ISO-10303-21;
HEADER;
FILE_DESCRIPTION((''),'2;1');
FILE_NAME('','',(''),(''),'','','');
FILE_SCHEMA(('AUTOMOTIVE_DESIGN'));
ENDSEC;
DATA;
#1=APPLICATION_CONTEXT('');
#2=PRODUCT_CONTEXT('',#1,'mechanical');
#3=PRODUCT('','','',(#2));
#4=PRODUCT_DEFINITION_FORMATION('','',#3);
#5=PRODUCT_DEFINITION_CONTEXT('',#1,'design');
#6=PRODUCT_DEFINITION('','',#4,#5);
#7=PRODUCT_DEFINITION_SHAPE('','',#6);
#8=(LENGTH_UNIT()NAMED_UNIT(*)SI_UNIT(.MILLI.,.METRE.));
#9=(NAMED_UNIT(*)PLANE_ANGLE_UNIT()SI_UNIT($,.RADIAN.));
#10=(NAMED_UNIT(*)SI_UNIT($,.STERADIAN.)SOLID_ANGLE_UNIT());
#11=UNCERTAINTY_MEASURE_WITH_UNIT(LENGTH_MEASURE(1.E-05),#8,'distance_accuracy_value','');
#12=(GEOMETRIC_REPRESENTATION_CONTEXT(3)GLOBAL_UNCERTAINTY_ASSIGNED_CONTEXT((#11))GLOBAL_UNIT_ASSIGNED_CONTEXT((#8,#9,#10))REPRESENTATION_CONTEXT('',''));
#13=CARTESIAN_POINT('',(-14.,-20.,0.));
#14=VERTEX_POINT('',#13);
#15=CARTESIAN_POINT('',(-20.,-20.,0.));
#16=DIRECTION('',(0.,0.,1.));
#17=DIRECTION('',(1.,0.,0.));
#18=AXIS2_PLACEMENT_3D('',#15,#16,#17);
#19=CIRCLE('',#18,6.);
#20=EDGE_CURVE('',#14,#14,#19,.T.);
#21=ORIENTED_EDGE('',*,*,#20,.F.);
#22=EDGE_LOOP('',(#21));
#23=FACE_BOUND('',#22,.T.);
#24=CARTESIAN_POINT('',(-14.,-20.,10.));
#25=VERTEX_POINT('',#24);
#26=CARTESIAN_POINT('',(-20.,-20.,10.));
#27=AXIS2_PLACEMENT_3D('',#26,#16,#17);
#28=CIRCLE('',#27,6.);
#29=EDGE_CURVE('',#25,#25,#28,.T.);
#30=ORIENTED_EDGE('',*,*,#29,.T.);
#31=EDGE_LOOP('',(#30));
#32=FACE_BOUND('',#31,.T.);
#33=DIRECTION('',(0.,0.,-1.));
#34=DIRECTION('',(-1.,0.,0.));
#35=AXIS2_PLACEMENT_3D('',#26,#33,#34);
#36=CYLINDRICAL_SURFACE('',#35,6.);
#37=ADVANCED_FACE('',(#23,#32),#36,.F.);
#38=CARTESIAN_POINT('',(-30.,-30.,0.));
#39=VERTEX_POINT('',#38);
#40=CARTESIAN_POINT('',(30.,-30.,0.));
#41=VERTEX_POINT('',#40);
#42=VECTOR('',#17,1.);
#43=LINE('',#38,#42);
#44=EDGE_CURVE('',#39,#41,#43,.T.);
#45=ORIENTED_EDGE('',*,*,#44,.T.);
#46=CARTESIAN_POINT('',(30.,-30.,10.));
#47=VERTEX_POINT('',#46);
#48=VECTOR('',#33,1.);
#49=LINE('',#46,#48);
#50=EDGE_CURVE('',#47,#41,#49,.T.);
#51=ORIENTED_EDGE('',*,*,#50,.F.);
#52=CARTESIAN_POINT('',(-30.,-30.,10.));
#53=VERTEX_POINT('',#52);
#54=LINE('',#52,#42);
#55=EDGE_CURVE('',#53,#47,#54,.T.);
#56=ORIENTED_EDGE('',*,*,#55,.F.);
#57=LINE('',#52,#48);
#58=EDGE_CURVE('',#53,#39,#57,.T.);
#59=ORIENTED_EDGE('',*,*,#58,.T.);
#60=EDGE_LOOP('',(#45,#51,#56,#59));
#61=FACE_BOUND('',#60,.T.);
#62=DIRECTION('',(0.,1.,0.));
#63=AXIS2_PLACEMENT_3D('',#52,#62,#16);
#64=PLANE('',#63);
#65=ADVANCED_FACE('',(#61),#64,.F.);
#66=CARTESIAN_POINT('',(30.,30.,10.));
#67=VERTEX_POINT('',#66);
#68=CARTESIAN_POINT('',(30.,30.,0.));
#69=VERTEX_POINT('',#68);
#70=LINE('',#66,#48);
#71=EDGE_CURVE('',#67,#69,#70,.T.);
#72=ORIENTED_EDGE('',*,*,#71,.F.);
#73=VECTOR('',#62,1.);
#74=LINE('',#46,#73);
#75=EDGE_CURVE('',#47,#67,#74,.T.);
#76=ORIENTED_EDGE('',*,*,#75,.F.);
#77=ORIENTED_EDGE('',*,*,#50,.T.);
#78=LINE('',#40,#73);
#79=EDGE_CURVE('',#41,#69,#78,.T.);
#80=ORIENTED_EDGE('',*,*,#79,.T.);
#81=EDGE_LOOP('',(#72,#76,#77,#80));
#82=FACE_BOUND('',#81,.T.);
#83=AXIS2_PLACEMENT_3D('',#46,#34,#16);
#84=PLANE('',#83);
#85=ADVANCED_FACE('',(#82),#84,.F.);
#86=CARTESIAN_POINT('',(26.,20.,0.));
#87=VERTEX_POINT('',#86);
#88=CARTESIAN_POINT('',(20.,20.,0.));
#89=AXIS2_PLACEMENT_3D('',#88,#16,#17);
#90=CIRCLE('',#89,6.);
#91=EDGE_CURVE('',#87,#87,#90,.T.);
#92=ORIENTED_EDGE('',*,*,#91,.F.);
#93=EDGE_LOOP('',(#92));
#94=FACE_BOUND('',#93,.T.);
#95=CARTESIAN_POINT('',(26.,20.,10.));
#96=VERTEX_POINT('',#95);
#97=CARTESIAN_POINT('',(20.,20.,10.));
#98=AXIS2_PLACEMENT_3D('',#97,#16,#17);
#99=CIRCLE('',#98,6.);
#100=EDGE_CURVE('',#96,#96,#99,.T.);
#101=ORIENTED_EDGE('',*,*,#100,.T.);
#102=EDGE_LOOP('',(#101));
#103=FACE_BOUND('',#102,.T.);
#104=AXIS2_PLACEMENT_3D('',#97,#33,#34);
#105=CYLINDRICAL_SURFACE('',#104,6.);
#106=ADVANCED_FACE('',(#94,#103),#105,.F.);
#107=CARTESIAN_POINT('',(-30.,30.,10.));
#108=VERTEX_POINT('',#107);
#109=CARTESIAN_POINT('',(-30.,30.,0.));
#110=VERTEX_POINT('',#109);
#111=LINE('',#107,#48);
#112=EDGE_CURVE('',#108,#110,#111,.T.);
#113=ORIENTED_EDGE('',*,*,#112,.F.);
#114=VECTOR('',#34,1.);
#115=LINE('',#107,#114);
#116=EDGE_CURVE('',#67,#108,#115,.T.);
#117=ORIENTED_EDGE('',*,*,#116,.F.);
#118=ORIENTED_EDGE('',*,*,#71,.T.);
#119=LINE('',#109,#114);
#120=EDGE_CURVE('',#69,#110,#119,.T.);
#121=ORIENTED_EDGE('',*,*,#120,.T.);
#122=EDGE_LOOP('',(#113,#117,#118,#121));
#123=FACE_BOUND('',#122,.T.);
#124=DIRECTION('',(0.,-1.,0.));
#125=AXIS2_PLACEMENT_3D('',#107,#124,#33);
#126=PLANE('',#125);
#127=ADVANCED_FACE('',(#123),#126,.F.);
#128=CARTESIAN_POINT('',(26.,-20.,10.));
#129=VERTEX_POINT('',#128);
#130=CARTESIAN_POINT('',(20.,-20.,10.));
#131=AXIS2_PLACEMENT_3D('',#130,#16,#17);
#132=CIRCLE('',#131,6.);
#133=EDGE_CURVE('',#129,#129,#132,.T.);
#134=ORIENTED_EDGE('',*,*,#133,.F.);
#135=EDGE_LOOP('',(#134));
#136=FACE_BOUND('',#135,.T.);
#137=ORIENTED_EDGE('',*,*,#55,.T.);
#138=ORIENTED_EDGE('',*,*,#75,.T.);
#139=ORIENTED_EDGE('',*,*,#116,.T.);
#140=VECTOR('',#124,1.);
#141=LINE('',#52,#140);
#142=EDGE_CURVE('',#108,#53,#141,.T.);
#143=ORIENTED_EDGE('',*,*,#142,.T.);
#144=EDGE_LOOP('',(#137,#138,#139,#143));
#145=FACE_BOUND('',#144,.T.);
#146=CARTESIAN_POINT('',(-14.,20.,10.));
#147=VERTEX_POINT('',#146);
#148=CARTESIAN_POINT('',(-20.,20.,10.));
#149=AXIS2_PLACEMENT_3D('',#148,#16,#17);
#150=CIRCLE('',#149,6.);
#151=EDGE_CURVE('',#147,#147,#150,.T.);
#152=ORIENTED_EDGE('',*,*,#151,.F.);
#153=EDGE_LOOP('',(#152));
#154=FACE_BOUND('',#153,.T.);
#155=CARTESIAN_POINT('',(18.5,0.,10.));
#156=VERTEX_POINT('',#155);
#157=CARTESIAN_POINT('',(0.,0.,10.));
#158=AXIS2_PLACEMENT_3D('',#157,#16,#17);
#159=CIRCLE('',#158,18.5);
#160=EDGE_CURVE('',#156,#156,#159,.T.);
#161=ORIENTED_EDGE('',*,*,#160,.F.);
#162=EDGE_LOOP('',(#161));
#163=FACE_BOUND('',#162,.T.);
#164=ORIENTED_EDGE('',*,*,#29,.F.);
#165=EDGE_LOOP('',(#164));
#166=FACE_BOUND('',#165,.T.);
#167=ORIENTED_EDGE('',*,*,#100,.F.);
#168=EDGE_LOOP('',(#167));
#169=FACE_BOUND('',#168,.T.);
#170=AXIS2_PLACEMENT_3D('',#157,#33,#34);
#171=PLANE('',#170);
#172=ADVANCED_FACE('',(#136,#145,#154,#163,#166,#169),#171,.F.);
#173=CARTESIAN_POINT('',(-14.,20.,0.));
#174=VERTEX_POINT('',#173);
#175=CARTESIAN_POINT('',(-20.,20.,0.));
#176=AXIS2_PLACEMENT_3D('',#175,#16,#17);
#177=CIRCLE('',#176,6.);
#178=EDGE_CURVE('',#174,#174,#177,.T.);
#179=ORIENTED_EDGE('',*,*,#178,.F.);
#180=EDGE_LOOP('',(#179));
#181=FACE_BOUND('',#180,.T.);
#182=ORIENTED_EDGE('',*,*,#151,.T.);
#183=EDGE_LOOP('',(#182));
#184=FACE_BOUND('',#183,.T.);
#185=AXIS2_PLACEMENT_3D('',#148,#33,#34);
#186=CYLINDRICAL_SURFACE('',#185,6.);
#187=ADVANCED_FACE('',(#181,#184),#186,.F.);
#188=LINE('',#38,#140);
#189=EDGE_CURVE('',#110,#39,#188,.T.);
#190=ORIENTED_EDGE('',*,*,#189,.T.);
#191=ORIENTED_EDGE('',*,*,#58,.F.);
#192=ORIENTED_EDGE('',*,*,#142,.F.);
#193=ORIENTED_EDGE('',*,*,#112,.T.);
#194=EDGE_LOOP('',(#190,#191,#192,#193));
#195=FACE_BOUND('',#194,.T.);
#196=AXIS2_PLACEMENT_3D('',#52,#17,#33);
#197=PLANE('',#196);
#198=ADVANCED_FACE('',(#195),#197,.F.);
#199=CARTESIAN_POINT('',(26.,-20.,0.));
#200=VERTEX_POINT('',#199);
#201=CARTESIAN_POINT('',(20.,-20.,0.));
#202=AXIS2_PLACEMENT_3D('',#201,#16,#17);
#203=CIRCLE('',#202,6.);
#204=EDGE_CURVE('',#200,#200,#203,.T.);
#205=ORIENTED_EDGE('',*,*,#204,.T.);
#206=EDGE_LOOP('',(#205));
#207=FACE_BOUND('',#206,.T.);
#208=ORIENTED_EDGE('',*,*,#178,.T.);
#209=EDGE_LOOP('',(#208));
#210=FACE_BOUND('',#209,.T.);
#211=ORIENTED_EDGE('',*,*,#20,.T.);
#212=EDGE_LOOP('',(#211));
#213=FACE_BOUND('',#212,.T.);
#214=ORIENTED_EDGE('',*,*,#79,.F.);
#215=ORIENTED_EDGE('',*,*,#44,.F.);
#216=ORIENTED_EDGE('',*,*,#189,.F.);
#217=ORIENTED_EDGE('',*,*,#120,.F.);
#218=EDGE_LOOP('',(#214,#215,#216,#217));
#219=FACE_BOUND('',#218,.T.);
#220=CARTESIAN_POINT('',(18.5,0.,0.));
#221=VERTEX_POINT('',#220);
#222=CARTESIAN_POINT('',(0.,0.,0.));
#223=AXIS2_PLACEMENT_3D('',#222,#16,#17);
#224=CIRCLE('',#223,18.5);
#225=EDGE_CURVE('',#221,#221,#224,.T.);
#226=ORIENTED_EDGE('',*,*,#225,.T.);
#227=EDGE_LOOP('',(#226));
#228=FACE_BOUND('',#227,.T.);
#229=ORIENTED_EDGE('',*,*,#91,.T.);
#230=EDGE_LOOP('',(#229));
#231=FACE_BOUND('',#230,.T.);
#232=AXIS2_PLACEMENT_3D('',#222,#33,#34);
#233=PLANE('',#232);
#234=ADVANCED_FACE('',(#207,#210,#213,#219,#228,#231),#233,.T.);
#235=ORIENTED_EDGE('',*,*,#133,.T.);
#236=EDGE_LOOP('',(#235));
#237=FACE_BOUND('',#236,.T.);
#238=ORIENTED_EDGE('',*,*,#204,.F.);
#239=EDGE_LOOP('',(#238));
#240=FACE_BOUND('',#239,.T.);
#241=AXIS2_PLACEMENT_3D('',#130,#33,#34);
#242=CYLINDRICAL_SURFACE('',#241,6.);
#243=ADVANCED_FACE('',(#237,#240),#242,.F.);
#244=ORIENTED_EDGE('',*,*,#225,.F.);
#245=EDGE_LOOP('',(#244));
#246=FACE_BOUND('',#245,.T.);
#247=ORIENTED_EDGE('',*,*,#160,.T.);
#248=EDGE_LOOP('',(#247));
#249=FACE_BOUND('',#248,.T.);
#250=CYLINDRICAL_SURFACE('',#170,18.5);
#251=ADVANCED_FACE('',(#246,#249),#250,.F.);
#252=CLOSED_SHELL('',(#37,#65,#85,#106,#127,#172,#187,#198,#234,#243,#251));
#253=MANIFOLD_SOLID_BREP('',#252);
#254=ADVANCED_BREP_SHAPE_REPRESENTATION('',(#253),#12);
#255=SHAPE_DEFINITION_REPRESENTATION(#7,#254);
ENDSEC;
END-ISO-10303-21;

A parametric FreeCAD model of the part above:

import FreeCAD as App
import Part
import Sketcher
from FreeCAD import Vector


def add_polygon(sketch, points):
    """Adds a closed chain of lines whose ends are joined by coincident constraints."""
    first, n = sketch.GeometryCount, len(points)
    for a, b in zip(points, points[1:] + points[:1]):
        sketch.addGeometry(Part.LineSegment(App.Vector(*a, 0), App.Vector(*b, 0)), False)
    for i in range(n):
        sketch.addConstraint(Sketcher.Constraint("Coincident", first + i, 2, first + (i + 1) % n, 1))

doc = App.newDocument("Part")
body = doc.addObject("PartDesign::Body", "Body")

sketch1 = body.newObject("Sketcher::SketchObject", "Sketch")
sketch1.AttachmentSupport = (doc.getObject("XY_Plane"), [""])
sketch1.MapMode = "FlatFace"
add_polygon(sketch1, [(-30, 30), (-30, -30), (30, -30), (30, 30)])
sketch1.addGeometry(Part.Circle(Vector(-20, -20, 0), Vector(0, 0, 1), 6), False)
sketch1.addGeometry(Part.Circle(Vector(20, -20, 0), Vector(0, 0, 1), 6), False)
sketch1.addGeometry(Part.Circle(Vector(-20, 20, 0), Vector(0, 0, 1), 6), False)
sketch1.addGeometry(Part.Circle(Vector(0, 0, 0), Vector(0, 0, 1), 18), False)
sketch1.addGeometry(Part.Circle(Vector(20, 20, 0), Vector(0, 0, 1), 6), False)
sketch1.addConstraint([
    Sketcher.Constraint("Vertical", 0),
    Sketcher.Constraint("Horizontal", 1),
    Sketcher.Constraint("Vertical", 2),
    Sketcher.Constraint("Horizontal", 3),
    Sketcher.Constraint("Coincident", 7, 3, -1, 1),
    Sketcher.Constraint("Equal", 4, 5),
    Sketcher.Constraint("Equal", 5, 6),
    Sketcher.Constraint("Equal", 6, 8),
    Sketcher.Constraint("Symmetric", 5, 3, 6, 3, -1, 1),
    Sketcher.Constraint("Symmetric", 4, 3, 8, 3, -1, 1),
    Sketcher.Constraint("Symmetric", 0, 2, 2, 2, -1, 1),
    Sketcher.Constraint("Symmetric", 4, 3, 5, 3, -2),
    Sketcher.Constraint("Equal", 3, 0),
    Sketcher.Constraint("Diameter", 4, 12.0),
    Sketcher.Constraint("Diameter", 7, 37.0),
    Sketcher.Constraint("DistanceX", 1, 1, 1, 2, 60.0),
    Sketcher.Constraint("DistanceX", 4, 3, -1, 1, 20.0),
    Sketcher.Constraint("DistanceY", 4, 3, -1, 1, 20.0),
])
pad1 = body.newObject("PartDesign::Pad", "Pad")
pad1.Profile = sketch1
pad1.Length = 10

doc.recompute()
